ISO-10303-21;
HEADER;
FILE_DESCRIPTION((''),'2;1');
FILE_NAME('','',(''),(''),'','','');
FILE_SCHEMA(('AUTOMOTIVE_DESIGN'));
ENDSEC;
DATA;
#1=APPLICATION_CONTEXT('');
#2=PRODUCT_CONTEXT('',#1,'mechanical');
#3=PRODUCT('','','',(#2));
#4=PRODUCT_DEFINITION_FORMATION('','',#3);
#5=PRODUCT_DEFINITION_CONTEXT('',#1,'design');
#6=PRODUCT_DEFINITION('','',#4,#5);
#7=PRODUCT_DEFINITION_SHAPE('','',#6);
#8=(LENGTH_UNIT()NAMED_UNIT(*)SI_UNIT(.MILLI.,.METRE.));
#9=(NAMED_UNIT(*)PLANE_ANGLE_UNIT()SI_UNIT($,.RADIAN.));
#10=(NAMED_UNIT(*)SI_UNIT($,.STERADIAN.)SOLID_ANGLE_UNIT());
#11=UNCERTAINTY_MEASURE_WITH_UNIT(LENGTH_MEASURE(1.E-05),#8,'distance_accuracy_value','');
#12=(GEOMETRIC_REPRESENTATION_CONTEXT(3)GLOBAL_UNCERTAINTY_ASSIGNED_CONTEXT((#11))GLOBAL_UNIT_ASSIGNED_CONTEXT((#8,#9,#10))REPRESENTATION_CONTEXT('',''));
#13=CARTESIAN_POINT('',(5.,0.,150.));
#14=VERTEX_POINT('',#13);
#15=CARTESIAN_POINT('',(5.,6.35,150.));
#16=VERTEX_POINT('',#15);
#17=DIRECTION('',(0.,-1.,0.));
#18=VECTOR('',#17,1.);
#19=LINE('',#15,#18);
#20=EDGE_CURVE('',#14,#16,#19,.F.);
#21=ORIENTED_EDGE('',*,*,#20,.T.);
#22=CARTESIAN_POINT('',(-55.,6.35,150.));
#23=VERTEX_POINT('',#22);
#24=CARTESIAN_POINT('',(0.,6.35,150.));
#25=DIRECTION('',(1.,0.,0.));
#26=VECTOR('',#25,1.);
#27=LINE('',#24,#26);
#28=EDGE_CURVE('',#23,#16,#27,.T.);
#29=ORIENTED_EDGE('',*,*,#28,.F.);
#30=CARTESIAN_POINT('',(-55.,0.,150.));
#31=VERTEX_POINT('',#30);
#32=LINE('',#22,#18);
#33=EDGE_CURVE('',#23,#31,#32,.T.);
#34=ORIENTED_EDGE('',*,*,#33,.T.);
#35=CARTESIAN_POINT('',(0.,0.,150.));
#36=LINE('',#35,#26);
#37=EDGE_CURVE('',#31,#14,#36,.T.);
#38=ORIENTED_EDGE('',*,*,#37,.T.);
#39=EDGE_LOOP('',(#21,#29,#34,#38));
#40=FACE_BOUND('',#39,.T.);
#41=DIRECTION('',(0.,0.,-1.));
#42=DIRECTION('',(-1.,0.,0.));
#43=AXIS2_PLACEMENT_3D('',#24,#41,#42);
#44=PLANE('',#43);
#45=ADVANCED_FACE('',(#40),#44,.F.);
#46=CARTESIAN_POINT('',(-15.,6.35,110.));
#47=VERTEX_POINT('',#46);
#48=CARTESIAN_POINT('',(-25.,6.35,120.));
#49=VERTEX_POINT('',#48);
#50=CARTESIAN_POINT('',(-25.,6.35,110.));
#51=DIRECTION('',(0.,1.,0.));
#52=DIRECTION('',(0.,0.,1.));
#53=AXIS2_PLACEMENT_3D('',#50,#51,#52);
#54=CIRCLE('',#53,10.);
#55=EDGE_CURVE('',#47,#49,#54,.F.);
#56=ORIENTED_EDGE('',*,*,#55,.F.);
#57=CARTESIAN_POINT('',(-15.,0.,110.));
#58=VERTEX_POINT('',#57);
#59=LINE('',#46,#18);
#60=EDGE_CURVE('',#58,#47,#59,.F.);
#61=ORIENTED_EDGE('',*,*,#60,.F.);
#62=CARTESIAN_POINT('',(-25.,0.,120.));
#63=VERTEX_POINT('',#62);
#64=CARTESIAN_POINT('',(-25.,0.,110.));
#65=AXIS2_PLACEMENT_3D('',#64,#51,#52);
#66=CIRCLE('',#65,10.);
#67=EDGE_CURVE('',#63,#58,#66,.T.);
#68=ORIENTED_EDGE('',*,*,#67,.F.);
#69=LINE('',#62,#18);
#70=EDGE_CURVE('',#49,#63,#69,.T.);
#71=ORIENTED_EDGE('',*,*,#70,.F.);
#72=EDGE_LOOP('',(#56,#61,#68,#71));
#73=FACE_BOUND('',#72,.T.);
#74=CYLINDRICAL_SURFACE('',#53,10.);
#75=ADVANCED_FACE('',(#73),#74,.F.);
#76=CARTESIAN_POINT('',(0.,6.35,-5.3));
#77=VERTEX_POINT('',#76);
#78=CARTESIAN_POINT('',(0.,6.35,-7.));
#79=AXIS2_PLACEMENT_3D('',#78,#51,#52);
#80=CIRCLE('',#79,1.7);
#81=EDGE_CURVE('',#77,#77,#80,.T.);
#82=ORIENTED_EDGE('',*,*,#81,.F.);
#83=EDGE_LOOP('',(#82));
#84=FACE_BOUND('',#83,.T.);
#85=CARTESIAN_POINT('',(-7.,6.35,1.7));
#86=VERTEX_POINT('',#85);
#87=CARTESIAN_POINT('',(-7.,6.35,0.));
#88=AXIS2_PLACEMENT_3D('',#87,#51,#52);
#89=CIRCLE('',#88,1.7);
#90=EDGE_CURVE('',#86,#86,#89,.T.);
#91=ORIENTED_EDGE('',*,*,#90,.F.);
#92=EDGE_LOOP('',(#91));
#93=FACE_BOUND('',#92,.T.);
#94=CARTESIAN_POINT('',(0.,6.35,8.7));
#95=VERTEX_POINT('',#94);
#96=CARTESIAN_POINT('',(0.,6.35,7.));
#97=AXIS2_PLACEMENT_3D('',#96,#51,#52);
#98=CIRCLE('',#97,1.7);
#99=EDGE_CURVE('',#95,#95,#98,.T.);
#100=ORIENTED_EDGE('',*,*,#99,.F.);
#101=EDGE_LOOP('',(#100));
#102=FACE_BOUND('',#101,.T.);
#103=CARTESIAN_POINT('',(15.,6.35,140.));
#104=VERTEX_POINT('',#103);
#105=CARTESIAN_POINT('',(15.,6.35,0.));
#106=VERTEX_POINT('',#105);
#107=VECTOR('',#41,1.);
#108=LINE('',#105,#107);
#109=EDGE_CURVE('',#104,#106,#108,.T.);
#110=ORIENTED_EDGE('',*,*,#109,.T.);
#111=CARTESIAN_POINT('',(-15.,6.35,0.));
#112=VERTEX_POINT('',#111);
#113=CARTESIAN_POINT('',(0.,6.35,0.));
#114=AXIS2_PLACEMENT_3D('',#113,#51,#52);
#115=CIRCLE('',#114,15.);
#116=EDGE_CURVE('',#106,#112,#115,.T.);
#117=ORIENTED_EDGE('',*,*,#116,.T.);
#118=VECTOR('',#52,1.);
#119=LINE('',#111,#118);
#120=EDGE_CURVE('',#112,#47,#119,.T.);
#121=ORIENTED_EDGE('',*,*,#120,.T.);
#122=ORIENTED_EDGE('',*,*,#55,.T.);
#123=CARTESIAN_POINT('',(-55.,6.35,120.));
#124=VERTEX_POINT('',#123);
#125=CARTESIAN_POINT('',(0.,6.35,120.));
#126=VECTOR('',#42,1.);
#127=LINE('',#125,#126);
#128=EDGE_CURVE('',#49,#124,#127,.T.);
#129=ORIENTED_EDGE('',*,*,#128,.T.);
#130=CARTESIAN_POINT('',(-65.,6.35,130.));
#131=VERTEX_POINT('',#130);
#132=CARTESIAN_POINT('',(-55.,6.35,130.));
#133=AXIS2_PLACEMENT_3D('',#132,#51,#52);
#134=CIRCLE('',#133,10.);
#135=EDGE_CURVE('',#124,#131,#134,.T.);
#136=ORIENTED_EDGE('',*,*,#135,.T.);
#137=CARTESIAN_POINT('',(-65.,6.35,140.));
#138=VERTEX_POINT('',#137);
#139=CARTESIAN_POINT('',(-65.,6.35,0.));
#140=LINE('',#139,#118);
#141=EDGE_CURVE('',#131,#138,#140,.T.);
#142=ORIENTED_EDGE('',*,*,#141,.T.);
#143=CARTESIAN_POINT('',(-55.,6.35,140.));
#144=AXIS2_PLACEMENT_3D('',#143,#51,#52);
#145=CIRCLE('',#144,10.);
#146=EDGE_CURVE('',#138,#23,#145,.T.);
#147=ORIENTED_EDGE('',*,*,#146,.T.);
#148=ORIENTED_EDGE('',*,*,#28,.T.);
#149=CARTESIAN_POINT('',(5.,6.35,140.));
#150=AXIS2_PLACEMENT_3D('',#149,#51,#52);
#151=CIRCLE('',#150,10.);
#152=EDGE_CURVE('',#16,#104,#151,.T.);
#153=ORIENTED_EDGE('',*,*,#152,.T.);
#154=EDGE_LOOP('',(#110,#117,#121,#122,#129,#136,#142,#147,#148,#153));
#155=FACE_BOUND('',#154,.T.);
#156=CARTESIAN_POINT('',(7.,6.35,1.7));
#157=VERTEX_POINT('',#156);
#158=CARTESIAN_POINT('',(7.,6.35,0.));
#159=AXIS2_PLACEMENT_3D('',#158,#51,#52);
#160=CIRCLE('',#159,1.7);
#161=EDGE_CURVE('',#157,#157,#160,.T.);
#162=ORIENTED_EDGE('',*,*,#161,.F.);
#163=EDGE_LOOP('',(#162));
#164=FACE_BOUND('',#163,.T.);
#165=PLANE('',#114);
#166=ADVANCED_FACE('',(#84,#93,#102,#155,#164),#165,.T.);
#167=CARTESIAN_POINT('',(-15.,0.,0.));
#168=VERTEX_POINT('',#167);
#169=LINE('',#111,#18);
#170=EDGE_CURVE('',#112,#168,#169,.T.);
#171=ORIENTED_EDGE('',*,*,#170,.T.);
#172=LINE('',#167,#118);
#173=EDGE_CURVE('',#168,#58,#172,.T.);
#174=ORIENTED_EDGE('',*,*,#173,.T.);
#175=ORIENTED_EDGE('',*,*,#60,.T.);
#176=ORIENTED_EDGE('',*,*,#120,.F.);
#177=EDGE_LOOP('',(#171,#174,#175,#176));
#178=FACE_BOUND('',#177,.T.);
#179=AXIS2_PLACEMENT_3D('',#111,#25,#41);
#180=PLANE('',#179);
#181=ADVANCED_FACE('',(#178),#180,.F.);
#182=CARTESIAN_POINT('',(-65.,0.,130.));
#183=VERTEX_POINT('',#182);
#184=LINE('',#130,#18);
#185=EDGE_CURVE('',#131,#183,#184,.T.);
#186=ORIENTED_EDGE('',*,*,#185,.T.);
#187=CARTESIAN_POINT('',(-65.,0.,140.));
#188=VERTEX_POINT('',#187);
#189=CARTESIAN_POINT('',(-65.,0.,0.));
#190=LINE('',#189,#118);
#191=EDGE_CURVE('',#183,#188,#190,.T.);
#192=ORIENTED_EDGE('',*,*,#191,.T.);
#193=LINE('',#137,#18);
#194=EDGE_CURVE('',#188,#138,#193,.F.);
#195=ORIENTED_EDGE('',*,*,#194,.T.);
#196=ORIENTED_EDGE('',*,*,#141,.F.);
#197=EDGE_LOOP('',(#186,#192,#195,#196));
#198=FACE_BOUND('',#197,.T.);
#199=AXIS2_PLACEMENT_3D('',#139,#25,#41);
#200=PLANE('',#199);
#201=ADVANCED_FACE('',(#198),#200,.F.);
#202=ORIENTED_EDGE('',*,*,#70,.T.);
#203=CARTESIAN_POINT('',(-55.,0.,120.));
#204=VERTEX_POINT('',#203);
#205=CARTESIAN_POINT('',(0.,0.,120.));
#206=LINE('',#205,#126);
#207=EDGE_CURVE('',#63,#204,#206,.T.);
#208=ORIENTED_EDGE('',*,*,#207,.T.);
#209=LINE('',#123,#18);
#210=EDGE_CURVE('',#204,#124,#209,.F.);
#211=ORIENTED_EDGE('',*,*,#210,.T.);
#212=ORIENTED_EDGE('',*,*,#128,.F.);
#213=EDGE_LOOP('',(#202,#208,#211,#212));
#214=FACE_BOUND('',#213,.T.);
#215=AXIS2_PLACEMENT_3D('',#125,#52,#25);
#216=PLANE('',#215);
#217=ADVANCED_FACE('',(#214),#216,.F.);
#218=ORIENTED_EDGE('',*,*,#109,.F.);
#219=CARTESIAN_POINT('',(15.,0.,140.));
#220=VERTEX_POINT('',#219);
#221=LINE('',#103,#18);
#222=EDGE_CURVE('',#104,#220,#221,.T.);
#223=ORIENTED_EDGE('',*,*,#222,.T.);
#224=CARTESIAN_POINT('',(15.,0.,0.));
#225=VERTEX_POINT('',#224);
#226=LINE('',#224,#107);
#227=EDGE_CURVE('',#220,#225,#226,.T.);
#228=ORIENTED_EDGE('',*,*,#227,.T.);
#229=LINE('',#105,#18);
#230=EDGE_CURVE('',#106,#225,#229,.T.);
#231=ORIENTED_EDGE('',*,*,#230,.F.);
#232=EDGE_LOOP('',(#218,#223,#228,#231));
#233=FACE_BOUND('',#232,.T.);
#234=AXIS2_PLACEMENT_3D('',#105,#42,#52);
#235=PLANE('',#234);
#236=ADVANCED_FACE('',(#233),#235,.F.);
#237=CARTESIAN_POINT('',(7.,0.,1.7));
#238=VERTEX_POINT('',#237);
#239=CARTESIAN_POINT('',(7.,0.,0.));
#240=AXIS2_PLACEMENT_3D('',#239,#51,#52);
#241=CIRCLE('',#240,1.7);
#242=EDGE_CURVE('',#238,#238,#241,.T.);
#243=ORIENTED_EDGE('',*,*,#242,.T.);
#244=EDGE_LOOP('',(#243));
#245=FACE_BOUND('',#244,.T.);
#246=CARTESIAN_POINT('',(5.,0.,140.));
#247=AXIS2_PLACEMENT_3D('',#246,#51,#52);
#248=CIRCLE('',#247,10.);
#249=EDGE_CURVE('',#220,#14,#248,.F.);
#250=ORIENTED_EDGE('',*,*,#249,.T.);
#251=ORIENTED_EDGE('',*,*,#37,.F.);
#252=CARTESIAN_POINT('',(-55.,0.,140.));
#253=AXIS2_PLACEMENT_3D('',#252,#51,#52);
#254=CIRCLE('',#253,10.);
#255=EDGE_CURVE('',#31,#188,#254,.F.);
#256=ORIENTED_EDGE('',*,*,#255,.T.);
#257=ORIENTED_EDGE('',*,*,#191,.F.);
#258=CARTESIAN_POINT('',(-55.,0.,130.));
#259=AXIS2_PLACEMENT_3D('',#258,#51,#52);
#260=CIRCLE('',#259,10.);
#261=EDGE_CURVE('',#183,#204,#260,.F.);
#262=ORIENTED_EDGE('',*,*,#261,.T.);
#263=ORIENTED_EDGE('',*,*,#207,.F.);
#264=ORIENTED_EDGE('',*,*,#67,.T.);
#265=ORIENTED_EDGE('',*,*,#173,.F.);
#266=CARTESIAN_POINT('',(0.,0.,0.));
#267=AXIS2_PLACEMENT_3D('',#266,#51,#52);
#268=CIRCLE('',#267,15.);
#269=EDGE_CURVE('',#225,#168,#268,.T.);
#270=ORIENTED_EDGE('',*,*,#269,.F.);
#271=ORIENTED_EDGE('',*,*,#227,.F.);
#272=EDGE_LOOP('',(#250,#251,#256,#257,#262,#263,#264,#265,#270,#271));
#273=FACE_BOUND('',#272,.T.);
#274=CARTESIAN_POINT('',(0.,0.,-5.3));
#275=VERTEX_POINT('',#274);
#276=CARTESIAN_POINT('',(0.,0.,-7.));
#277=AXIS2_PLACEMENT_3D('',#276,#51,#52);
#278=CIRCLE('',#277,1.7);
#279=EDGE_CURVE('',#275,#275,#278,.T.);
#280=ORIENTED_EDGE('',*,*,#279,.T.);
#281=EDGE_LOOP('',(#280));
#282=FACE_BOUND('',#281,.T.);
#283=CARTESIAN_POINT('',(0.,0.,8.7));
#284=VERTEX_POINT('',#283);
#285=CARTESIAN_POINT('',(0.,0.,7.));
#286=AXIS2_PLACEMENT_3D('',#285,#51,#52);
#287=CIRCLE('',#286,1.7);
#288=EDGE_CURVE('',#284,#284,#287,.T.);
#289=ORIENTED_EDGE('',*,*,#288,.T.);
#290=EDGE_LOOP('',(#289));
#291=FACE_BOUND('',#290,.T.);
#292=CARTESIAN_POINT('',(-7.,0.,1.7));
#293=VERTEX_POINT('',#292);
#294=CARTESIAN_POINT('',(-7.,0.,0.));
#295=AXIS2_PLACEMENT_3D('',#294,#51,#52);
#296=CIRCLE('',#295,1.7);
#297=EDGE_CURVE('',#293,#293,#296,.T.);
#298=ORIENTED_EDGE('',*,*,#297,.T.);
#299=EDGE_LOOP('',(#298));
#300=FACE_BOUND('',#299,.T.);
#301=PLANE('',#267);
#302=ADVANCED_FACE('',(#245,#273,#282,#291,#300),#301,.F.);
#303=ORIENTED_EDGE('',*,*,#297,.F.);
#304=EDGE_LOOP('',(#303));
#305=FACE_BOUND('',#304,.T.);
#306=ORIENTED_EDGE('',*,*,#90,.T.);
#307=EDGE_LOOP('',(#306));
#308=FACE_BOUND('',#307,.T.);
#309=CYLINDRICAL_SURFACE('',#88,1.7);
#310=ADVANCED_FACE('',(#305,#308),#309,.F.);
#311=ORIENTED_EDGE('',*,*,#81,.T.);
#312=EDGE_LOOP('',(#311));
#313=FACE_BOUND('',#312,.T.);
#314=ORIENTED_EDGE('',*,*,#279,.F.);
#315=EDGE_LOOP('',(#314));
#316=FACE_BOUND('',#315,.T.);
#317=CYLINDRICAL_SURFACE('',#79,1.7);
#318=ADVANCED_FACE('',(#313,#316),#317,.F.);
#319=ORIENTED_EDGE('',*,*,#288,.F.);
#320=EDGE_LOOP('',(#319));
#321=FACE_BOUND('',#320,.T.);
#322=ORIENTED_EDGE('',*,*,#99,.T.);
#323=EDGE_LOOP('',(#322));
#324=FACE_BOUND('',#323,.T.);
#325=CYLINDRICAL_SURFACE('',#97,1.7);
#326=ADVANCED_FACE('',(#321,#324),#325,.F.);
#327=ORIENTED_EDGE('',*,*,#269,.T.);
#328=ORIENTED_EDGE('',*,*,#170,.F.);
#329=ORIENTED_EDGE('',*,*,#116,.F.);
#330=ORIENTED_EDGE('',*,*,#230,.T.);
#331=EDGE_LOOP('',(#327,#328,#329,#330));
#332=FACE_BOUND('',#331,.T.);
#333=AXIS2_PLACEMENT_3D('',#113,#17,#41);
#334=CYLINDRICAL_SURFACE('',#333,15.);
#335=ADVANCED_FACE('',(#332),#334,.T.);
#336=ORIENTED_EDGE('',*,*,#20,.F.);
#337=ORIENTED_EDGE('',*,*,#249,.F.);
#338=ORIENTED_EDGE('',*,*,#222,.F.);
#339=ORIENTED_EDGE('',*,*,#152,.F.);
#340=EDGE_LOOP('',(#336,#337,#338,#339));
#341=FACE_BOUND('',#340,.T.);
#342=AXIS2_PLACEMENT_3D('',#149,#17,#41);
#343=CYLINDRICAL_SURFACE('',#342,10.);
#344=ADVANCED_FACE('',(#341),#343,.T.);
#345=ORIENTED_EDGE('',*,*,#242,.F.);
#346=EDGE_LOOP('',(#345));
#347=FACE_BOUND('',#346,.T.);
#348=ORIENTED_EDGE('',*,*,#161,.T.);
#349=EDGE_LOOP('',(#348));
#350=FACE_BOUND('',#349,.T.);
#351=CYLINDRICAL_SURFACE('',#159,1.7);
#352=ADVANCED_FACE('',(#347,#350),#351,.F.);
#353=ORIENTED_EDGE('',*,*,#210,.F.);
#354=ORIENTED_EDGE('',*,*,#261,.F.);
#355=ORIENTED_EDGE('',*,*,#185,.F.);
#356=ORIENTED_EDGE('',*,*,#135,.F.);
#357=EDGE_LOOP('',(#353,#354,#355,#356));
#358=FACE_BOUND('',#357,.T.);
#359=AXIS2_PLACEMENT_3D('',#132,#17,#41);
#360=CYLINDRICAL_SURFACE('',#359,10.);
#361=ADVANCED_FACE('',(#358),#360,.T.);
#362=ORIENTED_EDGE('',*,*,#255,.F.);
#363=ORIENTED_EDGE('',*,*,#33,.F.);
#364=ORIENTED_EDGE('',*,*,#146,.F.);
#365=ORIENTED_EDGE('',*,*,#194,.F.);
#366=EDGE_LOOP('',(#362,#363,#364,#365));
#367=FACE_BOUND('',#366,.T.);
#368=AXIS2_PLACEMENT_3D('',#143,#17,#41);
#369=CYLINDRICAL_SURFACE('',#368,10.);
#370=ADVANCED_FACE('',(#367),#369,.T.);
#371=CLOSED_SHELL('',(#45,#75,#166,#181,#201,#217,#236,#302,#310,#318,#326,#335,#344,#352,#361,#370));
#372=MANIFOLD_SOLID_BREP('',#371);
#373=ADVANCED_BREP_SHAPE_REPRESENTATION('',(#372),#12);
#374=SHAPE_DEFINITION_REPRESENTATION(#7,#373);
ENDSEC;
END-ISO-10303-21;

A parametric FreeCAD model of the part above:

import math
import FreeCAD as App
import Part
import Sketcher
from FreeCAD import Vector
Q = App.Units.Quantity


def edges_at(feature, points):
    """Names of the edges that pass closest to the given points."""
    edges = feature.Shape.Edges
    near = lambda p: min(range(len(edges)), key=lambda i: edges[i].distToShape(Part.Vertex(*p))[0])
    return sorted({f"Edge{near(p) + 1}" for p in points})

doc = App.newDocument("Part")
body = doc.addObject("PartDesign::Body", "Body")

# Sketch on XZ plane
sketch1 = body.newObject("Sketcher::SketchObject", "Sketch")
sketch1.AttachmentSupport = (doc.getObject("XZ_Plane"), [""])
sketch1.MapMode = "FlatFace"
sketch1.addGeometry([
    Part.LineSegment(Vector(-15, 0, 0), Vector(-15, 120, 0)),  # 0
    Part.LineSegment(Vector(-15, 120, 0), Vector(-65, 120, 0)),  # 1
    Part.LineSegment(Vector(-65, 120, 0), Vector(-65, 150, 0)),  # 2
    Part.LineSegment(Vector(-65, 150, 0), Vector(15, 150, 0)),  # 3
    Part.LineSegment(Vector(15, 150, 0), Vector(15, 0, 0)),  # 4
    Part.ArcOfCircle(Part.Circle(Vector(0, 0, 0), Vector(0, 0, 1), 15), math.radians(180), math.radians(360)),  # 5
], False)
sketch1.addConstraint([
    Sketcher.Constraint("Coincident", 0, 2, 1, 1),
    Sketcher.Constraint("Coincident", 1, 2, 2, 1),
    Sketcher.Constraint("Coincident", 2, 2, 3, 1),
    Sketcher.Constraint("Coincident", 3, 2, 4, 1),
    Sketcher.Constraint("Tangent", 4, 2, 5, 2),
    Sketcher.Constraint("Tangent", 5, 1, 0, 1),
    Sketcher.Constraint("Vertical", 0),
    Sketcher.Constraint("Horizontal", 1),
    Sketcher.Constraint("Vertical", 2),
    Sketcher.Constraint("Horizontal", 3),
    Sketcher.Constraint("Vertical", 4),
    Sketcher.Constraint("Coincident", 5, 3, -1, 1),
    Sketcher.Constraint("Radius", 5, Q("15 mm")),
    Sketcher.Constraint("DistanceX", 1, 2, 1, 1, Q("50 mm")),
    Sketcher.Constraint("DistanceY", 0, 1, 0, 2, Q("120 mm")),
    Sketcher.Constraint("DistanceY", 2, 1, 2, 2, Q("30 mm")),
])
pad1 = body.newObject("PartDesign::Pad", "Pad")
pad1.Profile = sketch1
pad1.Length = 6.35
pad1.Reversed = True

# Sketch on XZ plane
sketch2 = body.newObject("Sketcher::SketchObject", "Sketch001")
sketch2.AttachmentSupport = (doc.getObject("XZ_Plane"), [""])
sketch2.MapMode = "FlatFace"
sketch2.AttachmentOffset = App.Placement(Vector(0, 0, -6.35), App.Rotation())
sketch2.addGeometry(Part.Circle(Vector(0, -7, 0), Vector(0, 0, 1), 1.7), False)
sketch2.addConstraint([
    Sketcher.Constraint("PointOnObject", 0, 3, -2),
    Sketcher.Constraint("Diameter", 0, Q("3.4 mm")),
    Sketcher.Constraint("DistanceY", 0, 3, -1, 1, Q("7 mm")),
])
doc.recompute()
hole = body.newObject("PartDesign::Hole", "Hole")
hole.Profile = sketch2
hole.ThreadType = "None"
hole.Diameter = 3.4
hole.DepthType = "ThroughAll"
hole.Reversed = True
doc.recompute()

polarpattern = body.newObject("PartDesign::PolarPattern", "PolarPattern")
polarpattern.Originals = [hole]
polarpattern.Axis = (doc.getObject("Y_Axis"), [""])
polarpattern.Angle = 360
polarpattern.Occurrences = 4
body.Tip = polarpattern
doc.recompute()

fillet = body.newObject("PartDesign::Fillet", "Fillet")
fillet.Base = (polarpattern, edges_at(polarpattern, [
    (15, 3.175, 150),
    (-65, 3.175, 150),
    (-65, 3.175, 120),
    (-15, 3.175, 120),
]))
fillet.Radius = 10

doc.recompute()
